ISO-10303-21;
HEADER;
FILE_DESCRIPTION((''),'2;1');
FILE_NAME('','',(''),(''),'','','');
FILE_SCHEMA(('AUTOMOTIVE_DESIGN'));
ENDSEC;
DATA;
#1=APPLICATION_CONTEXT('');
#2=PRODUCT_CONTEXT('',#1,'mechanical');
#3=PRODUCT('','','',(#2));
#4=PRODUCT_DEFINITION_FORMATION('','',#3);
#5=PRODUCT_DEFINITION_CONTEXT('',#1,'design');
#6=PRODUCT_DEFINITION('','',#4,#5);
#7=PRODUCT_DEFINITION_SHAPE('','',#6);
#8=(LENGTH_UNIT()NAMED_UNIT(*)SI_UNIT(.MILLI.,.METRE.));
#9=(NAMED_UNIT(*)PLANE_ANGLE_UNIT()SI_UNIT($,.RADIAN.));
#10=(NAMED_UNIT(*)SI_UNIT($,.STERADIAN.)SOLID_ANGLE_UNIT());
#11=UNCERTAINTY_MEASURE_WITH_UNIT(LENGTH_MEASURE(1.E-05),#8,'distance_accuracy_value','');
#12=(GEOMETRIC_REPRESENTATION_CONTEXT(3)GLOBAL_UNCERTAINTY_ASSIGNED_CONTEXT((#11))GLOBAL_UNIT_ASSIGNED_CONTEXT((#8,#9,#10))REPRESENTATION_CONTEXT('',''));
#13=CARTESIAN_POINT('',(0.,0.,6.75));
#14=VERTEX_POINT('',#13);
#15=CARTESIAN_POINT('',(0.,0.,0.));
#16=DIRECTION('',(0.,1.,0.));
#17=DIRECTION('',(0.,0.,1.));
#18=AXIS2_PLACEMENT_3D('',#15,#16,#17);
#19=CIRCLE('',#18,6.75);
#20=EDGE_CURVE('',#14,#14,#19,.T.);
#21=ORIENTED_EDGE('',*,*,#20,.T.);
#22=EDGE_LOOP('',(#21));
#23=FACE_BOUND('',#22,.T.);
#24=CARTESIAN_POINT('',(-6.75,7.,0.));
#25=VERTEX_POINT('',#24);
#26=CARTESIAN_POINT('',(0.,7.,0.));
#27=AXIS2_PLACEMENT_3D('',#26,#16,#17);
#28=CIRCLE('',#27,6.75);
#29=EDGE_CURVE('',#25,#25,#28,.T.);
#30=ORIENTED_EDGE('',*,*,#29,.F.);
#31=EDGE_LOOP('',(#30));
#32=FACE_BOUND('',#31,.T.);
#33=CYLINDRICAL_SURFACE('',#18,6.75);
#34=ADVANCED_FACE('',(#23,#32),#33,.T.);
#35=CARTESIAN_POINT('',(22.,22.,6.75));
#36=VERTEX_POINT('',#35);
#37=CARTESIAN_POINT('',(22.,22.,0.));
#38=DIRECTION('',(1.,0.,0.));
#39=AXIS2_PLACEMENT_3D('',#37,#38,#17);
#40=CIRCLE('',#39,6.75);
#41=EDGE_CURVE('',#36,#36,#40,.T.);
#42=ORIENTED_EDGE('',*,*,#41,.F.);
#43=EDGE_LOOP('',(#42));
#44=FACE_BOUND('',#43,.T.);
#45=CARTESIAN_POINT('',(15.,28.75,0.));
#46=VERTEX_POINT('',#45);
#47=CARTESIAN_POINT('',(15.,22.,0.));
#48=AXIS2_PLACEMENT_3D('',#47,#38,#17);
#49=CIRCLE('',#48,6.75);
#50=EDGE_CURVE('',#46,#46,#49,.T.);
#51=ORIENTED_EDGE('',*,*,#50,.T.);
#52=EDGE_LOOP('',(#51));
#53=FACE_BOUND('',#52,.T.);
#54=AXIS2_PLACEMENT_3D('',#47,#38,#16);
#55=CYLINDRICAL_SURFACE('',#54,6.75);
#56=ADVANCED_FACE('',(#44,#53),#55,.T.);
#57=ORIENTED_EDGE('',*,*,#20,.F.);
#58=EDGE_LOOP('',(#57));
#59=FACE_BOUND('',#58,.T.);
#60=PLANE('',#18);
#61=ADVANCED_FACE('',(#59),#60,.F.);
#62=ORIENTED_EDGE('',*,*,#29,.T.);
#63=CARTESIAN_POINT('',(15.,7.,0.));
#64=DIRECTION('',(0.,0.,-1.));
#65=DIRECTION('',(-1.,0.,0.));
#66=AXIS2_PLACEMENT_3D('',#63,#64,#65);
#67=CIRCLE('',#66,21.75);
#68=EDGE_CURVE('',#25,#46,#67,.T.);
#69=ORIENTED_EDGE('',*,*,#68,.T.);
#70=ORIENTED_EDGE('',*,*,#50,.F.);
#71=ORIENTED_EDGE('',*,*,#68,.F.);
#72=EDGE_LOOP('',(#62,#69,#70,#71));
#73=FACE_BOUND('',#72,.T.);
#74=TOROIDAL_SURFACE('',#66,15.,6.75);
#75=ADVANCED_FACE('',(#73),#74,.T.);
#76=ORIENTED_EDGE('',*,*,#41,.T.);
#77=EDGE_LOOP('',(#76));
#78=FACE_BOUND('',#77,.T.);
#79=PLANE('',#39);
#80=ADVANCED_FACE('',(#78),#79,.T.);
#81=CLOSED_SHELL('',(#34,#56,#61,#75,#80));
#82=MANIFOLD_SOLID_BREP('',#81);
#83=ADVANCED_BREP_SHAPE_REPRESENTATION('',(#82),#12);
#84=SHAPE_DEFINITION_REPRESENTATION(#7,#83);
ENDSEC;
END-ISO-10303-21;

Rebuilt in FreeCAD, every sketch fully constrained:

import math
import FreeCAD as App
import Part
import Sketcher
from FreeCAD import Vector

doc = App.newDocument("Part")
body = doc.addObject("PartDesign::Body", "Body")

sketch1 = body.newObject("Sketcher::SketchObject", "Sketch")
sketch1.AttachmentSupport = (doc.getObject("XZ_Plane"), [""])
sketch1.MapMode = "FlatFace"
sketch1.addGeometry(Part.Circle(Vector(0, 0, 0), Vector(0, 0, 1), 7), False)
sketch1.addConstraint([
    Sketcher.Constraint("Coincident", 0, 3, -1, 1),
    Sketcher.Constraint("Diameter", 0, 13.5),
])

sketch2 = body.newObject("Sketcher::SketchObject", "Sketch001")
sketch2.AttachmentSupport = (doc.getObject("XY_Plane"), [""])
sketch2.MapMode = "FlatFace"
sketch2.addGeometry([
    Part.LineSegment(Vector(0, 0, 0), Vector(0, 7, 0)),
    Part.ArcOfCircle(Part.Circle(Vector(15, 7, 0), Vector(0, 0, 1), 15), math.radians(90), math.radians(180)),
    Part.LineSegment(Vector(15, 22, 0), Vector(22, 22, 0)),
], False)
sketch2.addConstraint([
    Sketcher.Constraint("Tangent", 0, 2, 1, 2),
    Sketcher.Constraint("Tangent", 1, 1, 2, 1),
    Sketcher.Constraint("Vertical", 0),
    Sketcher.Constraint("Horizontal", 2),
    Sketcher.Constraint("Coincident", 0, 1, -1, 1),
    Sketcher.Constraint("Equal", 2, 0),
    Sketcher.Constraint("Radius", 1, 15.0),
    Sketcher.Constraint("DistanceX", 2, 1, 2, 2, 7.0),
])
doc.recompute()

additivepipe = body.newObject("PartDesign::AdditivePipe", "AdditivePipe")
additivepipe.Profile = sketch1
additivepipe.Spine = (sketch2, ["Edge1", "Edge2", "Edge3"])

doc.recompute()
